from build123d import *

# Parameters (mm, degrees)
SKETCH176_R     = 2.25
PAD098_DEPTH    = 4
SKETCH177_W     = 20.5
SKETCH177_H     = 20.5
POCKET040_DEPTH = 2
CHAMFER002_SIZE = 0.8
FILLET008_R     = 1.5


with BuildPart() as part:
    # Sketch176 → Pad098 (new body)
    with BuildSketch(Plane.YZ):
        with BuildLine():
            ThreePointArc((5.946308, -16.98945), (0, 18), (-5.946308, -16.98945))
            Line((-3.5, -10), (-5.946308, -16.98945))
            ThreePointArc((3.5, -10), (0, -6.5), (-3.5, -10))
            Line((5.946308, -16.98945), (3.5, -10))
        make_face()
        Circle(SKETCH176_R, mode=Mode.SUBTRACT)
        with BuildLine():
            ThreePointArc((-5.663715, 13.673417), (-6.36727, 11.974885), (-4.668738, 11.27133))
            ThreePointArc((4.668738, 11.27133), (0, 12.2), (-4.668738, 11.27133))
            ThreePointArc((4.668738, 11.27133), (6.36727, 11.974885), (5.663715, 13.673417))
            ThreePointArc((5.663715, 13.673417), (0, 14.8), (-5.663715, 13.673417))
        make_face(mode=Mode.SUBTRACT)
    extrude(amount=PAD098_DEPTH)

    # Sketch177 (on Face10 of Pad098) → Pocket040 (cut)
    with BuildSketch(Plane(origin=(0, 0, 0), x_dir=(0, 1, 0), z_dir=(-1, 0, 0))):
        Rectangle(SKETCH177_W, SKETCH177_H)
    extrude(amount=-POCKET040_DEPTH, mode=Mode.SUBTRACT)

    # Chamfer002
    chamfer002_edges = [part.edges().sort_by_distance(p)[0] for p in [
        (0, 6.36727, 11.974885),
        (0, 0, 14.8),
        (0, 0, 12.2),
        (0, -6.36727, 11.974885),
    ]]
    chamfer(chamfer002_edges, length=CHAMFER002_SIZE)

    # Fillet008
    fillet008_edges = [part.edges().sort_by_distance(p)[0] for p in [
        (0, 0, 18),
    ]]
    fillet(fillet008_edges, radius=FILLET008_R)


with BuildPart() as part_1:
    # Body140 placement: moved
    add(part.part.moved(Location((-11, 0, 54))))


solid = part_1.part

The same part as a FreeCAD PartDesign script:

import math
import FreeCAD as App
import Part
import Sketcher

V = App.Vector
Q = App.Units.Quantity


def edges_at(feature, points):
    """Names of the edges that pass closest to the given points."""
    edges = feature.Shape.Edges
    near = lambda p: min(range(len(edges)), key=lambda i: edges[i].distToShape(Part.Vertex(*p))[0])
    return sorted({f"Edge{near(p) + 1}" for p in points})

doc = App.newDocument("Part")
body = doc.addObject("PartDesign::Body", "Body")

# Sketch on YZ plane
sketch1 = body.newObject("Sketcher::SketchObject", "Sketch")
sketch1.AttachmentSupport = (doc.getObject("YZ_Plane"), [""])
sketch1.MapMode = "FlatFace"
sketch1.addGeometry(Part.ArcOfCircle(Part.Circle(V(0, 0, 0), V(0, 0, 1), 18), math.radians(-71), math.radians(251)), False)
sketch1.addGeometry(Part.LineSegment(V(-5.9, -17, 0), V(-3.5, -10, 0)), False)
sketch1.addGeometry(Part.ArcOfCircle(Part.Circle(V(0, -10, 0), V(0, 0, 1), 3.5), math.radians(0), math.radians(180)), False)
sketch1.addGeometry(Part.LineSegment(V(3.5, -10, 0), V(5.9, -17, 0)), False)
sketch1.addGeometry(Part.Circle(V(0, 0, 0), V(0, 0, 1), 2.2), False)
sketch1.addGeometry(Part.ArcOfCircle(Part.Circle(V(-5.2, 12.5, 0), V(0, 0, 1), 1.3), math.radians(112), math.radians(292)), False)
sketch1.addGeometry(Part.ArcOfCircle(Part.Circle(V(0, 0, 0), V(0, 0, 1), 14.8), math.radians(67), math.radians(113)), False)
sketch1.addGeometry(Part.ArcOfCircle(Part.Circle(V(5.2, 12.5, 0), V(0, 0, 1), 1.3), math.radians(-112), math.radians(68)), False)
sketch1.addGeometry(Part.ArcOfCircle(Part.Circle(V(0, 0, 0), V(0, 0, 1), 12.2), math.radians(67), math.radians(113)), False)
sketch1.addConstraint(Sketcher.Constraint("Coincident", 0, 2, 1, 1))
sketch1.addConstraint(Sketcher.Constraint("Coincident", 1, 2, 2, 2))
sketch1.addConstraint(Sketcher.Constraint("Coincident", 2, 1, 3, 1))
sketch1.addConstraint(Sketcher.Constraint("Coincident", 3, 2, 0, 1))
sketch1.addConstraint(Sketcher.Constraint("Tangent", 5, 1, 6, 2))
sketch1.addConstraint(Sketcher.Constraint("Tangent", 6, 1, 7, 2))
sketch1.addConstraint(Sketcher.Constraint("Tangent", 7, 1, 8, 1))
sketch1.addConstraint(Sketcher.Constraint("Tangent", 8, 2, 5, 2))
sketch1.addConstraint(Sketcher.Constraint("Coincident", 0, 3, -1, 1))
sketch1.addConstraint(Sketcher.Constraint("Coincident", 4, 3, -1, 1))
sketch1.addConstraint(Sketcher.Constraint("Coincident", 6, 3, -1, 1))
sketch1.addConstraint(Sketcher.Constraint("Coincident", 8, 3, -1, 1))
sketch1.addConstraint(Sketcher.Constraint("Symmetric", 1, 2, 2, 1, -2))
sketch1.addConstraint(Sketcher.Constraint("Horizontal", 5, 3, 7, 3))
sketch1.addConstraint(Sketcher.Constraint("Horizontal", 2, 3, 1, 2))
sketch1.addConstraint(Sketcher.Constraint("Horizontal", 0, 2, 3, 2))
sketch1.addConstraint(Sketcher.Constraint("Radius", 0, Q("18 mm")))
sketch1.addConstraint(Sketcher.Constraint("Diameter", 4, Q("4.5 mm")))
sketch1.addConstraint(Sketcher.Constraint("Radius", 2, Q("3.5 mm")))
sketch1.addConstraint(Sketcher.Constraint("Radius", 5, Q("1.3 mm")))
sketch1.addConstraint(Sketcher.Constraint("Radius", 6, Q("14.8 mm")))
sketch1.addConstraint(Sketcher.Constraint("DistanceY", 2, 3, -1, 1, Q("10 mm")))
sketch1.addConstraint(Sketcher.Constraint("DistanceY", 0, 2, -1, 1, Q("16.98945 mm")))
sketch1.addConstraint(Sketcher.Constraint("DistanceX", -1, 1, 7, 1, Q("4.668738 mm")))
pad1 = body.newObject("PartDesign::Pad", "Pad")
pad1.Profile = sketch1
pad1.Length = 4

# Sketch on YZ plane
sketch2 = body.newObject("Sketcher::SketchObject", "Sketch001")
sketch2.AttachmentSupport = (doc.getObject("YZ_Plane"), [""])
sketch2.MapMode = "FlatFace"
sketch2.addGeometry(Part.LineSegment(V(-10, -10, 0), V(-10, 10, 0)), False)
sketch2.addGeometry(Part.LineSegment(V(-10, 10, 0), V(10, 10, 0)), False)
sketch2.addGeometry(Part.LineSegment(V(10, 10, 0), V(10, -10, 0)), False)
sketch2.addGeometry(Part.LineSegment(V(10, -10, 0), V(-10, -10, 0)), False)
sketch2.addConstraint(Sketcher.Constraint("Coincident", 0, 2, 1, 1))
sketch2.addConstraint(Sketcher.Constraint("Coincident", 1, 2, 2, 1))
sketch2.addConstraint(Sketcher.Constraint("Coincident", 2, 2, 3, 1))
sketch2.addConstraint(Sketcher.Constraint("Coincident", 3, 2, 0, 1))
sketch2.addConstraint(Sketcher.Constraint("Vertical", 0))
sketch2.addConstraint(Sketcher.Constraint("Horizontal", 1))
sketch2.addConstraint(Sketcher.Constraint("Vertical", 2))
sketch2.addConstraint(Sketcher.Constraint("Horizontal", 3))
sketch2.addConstraint(Sketcher.Constraint("Symmetric", 0, 2, 2, 2, -1, 1))
sketch2.addConstraint(Sketcher.Constraint("Equal", 3, 0))
sketch2.addConstraint(Sketcher.Constraint("DistanceX", 1, 1, 1, 2, Q("20.5 mm")))
pocket1 = body.newObject("PartDesign::Pocket", "Pocket")
pocket1.Profile = sketch2
pocket1.Length = 2
pocket1.Reversed = True
doc.recompute()

chamfer = body.newObject("PartDesign::Chamfer", "Chamfer")
chamfer.Base = (pocket1, edges_at(pocket1, [
    (0, 6.367, 11.975),
    (0, 0, 14.8),
    (0, 0, 12.2),
    (0, -6.367, 11.975),
]))
chamfer.Size = 0.8
doc.recompute()

fillet = body.newObject("PartDesign::Fillet", "Fillet")
fillet.Base = (chamfer, edges_at(chamfer, [(0, 0, 18)]))
fillet.Radius = 1.5
body2 = doc.addObject("PartDesign::Body", "Body001")
doc.recompute()

body.Placement = App.Placement(V(-11, 0, 54), App.Rotation(V(0, 0, 1), 0))
boolean = body2.newObject("PartDesign::Boolean", "Boolean")
boolean.Type = "Fuse"
boolean.addObjects([body])

doc.recompute()
